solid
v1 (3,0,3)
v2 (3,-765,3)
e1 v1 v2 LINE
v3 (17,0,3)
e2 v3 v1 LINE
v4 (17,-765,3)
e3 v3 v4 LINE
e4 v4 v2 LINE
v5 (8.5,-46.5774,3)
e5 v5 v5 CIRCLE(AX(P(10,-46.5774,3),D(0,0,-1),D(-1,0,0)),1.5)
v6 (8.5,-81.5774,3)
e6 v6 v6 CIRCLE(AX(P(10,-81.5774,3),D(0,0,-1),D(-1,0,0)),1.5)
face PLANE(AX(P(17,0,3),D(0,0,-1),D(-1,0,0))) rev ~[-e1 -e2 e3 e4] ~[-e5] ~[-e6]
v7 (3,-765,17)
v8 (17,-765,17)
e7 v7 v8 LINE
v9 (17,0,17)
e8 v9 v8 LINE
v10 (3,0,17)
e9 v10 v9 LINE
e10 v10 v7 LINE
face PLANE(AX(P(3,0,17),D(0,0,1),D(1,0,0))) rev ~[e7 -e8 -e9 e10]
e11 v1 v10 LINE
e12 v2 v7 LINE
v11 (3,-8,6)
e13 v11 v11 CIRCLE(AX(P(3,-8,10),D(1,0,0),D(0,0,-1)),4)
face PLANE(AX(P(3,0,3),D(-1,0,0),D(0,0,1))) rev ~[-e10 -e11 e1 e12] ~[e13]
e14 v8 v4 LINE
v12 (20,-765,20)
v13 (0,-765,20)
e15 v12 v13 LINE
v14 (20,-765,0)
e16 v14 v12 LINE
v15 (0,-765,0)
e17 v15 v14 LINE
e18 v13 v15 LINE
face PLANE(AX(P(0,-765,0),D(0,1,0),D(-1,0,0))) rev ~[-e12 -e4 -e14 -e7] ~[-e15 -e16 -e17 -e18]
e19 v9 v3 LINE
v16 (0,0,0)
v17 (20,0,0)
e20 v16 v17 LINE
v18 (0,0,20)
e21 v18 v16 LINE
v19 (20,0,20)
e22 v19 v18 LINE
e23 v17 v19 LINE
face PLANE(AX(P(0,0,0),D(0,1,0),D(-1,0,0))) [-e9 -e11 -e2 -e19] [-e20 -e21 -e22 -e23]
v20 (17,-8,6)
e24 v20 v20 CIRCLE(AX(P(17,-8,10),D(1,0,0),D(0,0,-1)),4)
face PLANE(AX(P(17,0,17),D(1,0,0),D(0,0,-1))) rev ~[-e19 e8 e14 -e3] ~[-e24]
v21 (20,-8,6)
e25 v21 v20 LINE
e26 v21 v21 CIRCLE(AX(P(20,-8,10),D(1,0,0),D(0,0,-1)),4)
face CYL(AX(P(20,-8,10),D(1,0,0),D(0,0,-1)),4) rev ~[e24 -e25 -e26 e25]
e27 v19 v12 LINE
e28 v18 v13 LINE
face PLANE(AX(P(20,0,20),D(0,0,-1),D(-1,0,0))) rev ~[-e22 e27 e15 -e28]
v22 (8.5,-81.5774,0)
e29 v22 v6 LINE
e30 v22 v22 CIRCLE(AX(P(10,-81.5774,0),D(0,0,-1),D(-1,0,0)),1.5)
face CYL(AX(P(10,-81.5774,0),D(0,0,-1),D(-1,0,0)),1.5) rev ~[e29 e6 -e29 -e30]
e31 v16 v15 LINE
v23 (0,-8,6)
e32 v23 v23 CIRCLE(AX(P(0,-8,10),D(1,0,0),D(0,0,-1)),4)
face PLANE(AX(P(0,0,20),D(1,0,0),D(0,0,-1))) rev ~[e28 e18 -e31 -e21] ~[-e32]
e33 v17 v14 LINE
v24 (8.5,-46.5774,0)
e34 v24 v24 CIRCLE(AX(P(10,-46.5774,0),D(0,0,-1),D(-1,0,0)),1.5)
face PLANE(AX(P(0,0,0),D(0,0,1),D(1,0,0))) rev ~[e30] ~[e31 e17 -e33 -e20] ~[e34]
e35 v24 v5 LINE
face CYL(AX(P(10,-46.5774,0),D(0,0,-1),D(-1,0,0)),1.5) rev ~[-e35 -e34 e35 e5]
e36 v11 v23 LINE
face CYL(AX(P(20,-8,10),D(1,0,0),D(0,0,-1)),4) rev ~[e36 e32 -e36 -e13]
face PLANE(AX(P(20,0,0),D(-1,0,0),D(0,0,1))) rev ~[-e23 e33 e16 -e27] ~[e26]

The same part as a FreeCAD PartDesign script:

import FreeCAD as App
import Part
import Sketcher
from FreeCAD import Vector


def add_polygon(sketch, points):
    """Adds a closed chain of lines whose ends are joined by coincident constraints."""
    first, n = sketch.GeometryCount, len(points)
    for a, b in zip(points, points[1:] + points[:1]):
        sketch.addGeometry(Part.LineSegment(App.Vector(*a, 0), App.Vector(*b, 0)), False)
    for i in range(n):
        sketch.addConstraint(Sketcher.Constraint("Coincident", first + i, 2, first + (i + 1) % n, 1))

doc = App.newDocument("Part")
params = doc.addObject("Spreadsheet::Sheet", "Params")
for row, (alias, value) in enumerate([
    ("sketch1_width", "20 mm"),
    ("pad1_length", "765 mm"),
    ("sketch2_diameter", "8 mm"),
    ("pocket1_length", "500 mm"),
    ("sketch3_diameter", "3 mm"),
    ("pocket2_length", "10 mm"),
], start=1):
    params.set(f"A{row}", alias)
    params.set(f"B{row}", "=" + value)
    params.setAlias(f"B{row}", alias)

body = doc.addObject("PartDesign::Body", "Body")

# Sketch on XZ plane
sketch1 = doc.addObject("Sketcher::SketchObject", "Sketch")
body.addObject(sketch1)
sketch1.AttachmentSupport = (doc.XZ_Plane, [""])
sketch1.MapMode = "FlatFace"
add_polygon(sketch1, [(20, 0), (0, 0), (0, 20), (20, 20)])  # lines 0-3
add_polygon(sketch1, [(17, 17), (3, 17), (3, 3), (17, 3)])  # lines 4-7
sketch1.addConstraint(Sketcher.Constraint("Horizontal", 0))
sketch1.addConstraint(Sketcher.Constraint("Vertical", 1))
sketch1.addConstraint(Sketcher.Constraint("Horizontal", 2))
sketch1.addConstraint(Sketcher.Constraint("Vertical", 3))
sketch1.addConstraint(Sketcher.Constraint("Horizontal", 4))
sketch1.addConstraint(Sketcher.Constraint("Vertical", 5))
sketch1.addConstraint(Sketcher.Constraint("Horizontal", 6))
sketch1.addConstraint(Sketcher.Constraint("Vertical", 7))
sketch1.addConstraint(Sketcher.Constraint("Coincident", 0, 2, -1, 1))
sketch1.addConstraint(Sketcher.Constraint("Equal", 2, 1))
sketch1.addConstraint(Sketcher.Constraint("Equal", 6, 5))
sketch1.addConstraint(Sketcher.Constraint("DistanceX", 0, 2, 0, 1, 20.0))
sketch1.addConstraint(Sketcher.Constraint("DistanceX", -1, 1, 4, 2, 3.0))
sketch1.addConstraint(Sketcher.Constraint("DistanceY", -1, 1, 5, 2, 3.0))
sketch1.addConstraint(Sketcher.Constraint("DistanceY", 4, 2, 1, 2, 3.0))
sketch1.setExpression("Constraints[19]", "Params.sketch1_width")
pad1 = doc.addObject("PartDesign::Pad", "Pad")
body.addObject(pad1)
pad1.Profile = sketch1
pad1.setExpression("Length", "Params.pad1_length")

# Sketch on YZ plane
sketch2 = doc.addObject("Sketcher::SketchObject", "Sketch001")
body.addObject(sketch2)
sketch2.AttachmentSupport = (doc.YZ_Plane, [""])
sketch2.MapMode = "FlatFace"
sketch2.AttachmentOffset = App.Placement(Vector(0, 0, 20), App.Rotation())
sketch2.addGeometry(Part.Circle(Vector(-8, 10, 0), Vector(0, 0, 1), 4), False)
sketch2.addConstraint(Sketcher.Constraint("Diameter", 0, 8.0))
sketch2.addConstraint(Sketcher.Constraint("DistanceX", 0, 3, -1, 1, 8.0))
sketch2.addConstraint(Sketcher.Constraint("DistanceY", -1, 1, 0, 3, 10.0))
sketch2.setExpression("Constraints[0]", "Params.sketch2_diameter")
pocket1 = doc.addObject("PartDesign::Pocket", "Pocket")
body.addObject(pocket1)
pocket1.Profile = sketch2
pocket1.setExpression("Length", "Params.pocket1_length")

# Sketch on XY plane
sketch3 = doc.addObject("Sketcher::SketchObject", "Sketch002")
body.addObject(sketch3)
sketch3.AttachmentSupport = (doc.XY_Plane, [""])
sketch3.MapMode = "FlatFace"
sketch3.addGeometry(Part.Circle(Vector(10, -46.5774, 0), Vector(0, 0, 1), 1.5), False)
sketch3.addGeometry(Part.Circle(Vector(10, -81.5774, 0), Vector(0, 0, 1), 1.5), False)
sketch3.addConstraint(Sketcher.Constraint("Equal", 0, 1))
sketch3.addConstraint(Sketcher.Constraint("Vertical", 0, 3, 1, 3))
sketch3.addConstraint(Sketcher.Constraint("Diameter", 0, 3.0))
sketch3.addConstraint(Sketcher.Constraint("DistanceX", -1, 1, 0, 3, 10.0))
sketch3.addConstraint(Sketcher.Constraint("DistanceY", 1, 3, 0, 3, 35.0))
sketch3.addConstraint(Sketcher.Constraint("DistanceY", 0, 3, -1, 1, 46.5774))
sketch3.setExpression("Constraints[2]", "Params.sketch3_diameter")
pocket2 = doc.addObject("PartDesign::Pocket", "Pocket001")
body.addObject(pocket2)
pocket2.Profile = sketch3
pocket2.setExpression("Length", "Params.pocket2_length")
pocket2.Reversed = True

doc.recompute()
